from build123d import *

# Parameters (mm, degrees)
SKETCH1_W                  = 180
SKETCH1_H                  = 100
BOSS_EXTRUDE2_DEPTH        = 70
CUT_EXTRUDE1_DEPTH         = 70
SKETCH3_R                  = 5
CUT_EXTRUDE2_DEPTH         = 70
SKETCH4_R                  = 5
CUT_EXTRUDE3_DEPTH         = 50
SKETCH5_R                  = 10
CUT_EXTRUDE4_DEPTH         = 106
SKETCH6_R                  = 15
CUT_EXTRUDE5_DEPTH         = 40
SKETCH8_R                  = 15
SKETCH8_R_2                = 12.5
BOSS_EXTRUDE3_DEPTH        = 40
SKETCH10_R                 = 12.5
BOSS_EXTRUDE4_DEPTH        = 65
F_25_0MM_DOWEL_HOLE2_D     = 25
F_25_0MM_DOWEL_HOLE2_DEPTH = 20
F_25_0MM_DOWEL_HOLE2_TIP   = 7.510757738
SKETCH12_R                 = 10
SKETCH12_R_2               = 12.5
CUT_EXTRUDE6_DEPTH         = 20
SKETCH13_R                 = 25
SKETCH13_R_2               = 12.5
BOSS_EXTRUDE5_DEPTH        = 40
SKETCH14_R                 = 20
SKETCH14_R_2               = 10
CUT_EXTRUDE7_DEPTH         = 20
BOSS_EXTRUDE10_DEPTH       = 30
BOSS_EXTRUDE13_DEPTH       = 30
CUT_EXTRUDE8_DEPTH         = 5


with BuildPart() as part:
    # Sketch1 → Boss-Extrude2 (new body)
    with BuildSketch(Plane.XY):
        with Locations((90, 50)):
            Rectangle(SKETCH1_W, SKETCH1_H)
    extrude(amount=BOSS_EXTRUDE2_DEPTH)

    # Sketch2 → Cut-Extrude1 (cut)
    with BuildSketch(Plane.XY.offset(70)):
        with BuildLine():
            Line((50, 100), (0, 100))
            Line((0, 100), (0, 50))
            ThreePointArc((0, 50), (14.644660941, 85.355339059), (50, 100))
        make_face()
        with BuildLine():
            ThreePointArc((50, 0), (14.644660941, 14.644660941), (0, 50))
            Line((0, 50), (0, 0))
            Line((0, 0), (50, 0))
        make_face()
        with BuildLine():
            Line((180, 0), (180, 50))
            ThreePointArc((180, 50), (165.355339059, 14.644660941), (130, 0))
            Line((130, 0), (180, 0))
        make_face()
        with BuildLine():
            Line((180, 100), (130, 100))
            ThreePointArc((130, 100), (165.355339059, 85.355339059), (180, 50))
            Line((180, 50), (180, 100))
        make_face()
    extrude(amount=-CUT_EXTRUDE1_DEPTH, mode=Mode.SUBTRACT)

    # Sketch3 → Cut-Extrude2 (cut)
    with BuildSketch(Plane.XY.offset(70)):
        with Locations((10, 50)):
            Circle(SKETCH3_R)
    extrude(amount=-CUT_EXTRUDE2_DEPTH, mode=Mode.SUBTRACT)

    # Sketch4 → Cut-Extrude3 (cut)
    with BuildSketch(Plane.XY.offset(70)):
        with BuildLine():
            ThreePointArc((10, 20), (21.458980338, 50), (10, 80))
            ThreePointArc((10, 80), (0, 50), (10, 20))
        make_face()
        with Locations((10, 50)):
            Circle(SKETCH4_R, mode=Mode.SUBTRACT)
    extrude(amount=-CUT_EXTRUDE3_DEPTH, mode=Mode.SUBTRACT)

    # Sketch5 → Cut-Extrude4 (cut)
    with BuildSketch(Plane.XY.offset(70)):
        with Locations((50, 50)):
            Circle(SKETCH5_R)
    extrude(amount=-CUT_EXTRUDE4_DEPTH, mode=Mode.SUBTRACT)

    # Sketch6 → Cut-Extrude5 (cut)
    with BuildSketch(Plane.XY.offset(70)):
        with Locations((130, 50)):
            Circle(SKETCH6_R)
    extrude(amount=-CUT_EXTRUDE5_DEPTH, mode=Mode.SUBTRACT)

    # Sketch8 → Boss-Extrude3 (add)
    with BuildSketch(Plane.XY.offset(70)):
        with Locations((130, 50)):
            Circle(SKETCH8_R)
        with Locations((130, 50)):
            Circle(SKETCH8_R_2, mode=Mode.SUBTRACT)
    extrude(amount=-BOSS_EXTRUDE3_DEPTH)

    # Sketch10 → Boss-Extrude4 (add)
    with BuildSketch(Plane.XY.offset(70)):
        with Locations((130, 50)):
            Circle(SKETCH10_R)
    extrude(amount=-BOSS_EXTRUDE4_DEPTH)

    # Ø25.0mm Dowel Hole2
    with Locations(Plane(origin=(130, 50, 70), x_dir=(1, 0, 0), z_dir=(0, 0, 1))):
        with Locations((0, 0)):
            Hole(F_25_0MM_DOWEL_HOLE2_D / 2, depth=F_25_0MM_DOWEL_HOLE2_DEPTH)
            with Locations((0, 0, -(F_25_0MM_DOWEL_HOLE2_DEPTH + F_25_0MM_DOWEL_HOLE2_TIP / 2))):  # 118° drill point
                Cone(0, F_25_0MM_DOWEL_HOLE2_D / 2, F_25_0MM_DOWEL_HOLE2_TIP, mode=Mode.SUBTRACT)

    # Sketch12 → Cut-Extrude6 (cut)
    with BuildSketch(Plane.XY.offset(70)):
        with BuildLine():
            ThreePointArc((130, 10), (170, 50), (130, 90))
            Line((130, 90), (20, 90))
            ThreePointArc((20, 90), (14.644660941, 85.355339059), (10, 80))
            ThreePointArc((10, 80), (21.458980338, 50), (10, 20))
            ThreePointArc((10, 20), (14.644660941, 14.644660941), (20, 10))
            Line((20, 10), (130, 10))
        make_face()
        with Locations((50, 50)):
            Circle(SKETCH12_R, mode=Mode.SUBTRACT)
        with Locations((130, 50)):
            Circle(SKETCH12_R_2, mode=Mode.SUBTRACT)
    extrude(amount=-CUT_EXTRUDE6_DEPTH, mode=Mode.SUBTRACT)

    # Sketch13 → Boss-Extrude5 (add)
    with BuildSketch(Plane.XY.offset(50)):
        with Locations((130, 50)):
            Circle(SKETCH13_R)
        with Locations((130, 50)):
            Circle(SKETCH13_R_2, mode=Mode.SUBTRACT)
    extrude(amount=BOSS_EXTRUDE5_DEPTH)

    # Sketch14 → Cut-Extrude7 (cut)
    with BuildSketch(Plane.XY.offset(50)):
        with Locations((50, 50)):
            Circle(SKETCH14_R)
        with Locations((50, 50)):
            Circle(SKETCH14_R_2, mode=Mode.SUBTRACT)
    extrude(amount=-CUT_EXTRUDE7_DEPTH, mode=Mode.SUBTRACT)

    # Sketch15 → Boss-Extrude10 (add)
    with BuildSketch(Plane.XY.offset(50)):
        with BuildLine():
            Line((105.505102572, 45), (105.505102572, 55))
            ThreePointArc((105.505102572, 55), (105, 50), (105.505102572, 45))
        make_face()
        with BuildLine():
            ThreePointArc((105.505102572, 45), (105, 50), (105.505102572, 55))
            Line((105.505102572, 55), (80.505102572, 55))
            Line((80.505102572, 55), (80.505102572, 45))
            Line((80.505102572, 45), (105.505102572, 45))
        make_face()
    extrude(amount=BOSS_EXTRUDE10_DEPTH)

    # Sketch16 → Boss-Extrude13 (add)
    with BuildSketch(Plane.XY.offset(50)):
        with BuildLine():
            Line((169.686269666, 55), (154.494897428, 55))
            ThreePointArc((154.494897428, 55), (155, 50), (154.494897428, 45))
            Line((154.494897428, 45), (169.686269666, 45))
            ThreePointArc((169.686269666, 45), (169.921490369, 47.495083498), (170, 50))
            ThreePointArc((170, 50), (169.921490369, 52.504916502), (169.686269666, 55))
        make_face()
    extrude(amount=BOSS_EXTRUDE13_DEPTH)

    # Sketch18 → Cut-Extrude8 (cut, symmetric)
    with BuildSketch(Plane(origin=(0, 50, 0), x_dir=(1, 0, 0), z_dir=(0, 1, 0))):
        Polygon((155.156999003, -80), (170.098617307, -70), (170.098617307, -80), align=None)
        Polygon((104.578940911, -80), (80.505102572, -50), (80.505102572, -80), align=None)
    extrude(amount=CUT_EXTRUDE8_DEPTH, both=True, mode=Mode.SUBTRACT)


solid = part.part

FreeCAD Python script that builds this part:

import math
import FreeCAD as App
import Part
import Sketcher
Q = App.Units.Quantity

doc = App.newDocument("Part")
body = doc.addObject("PartDesign::Body", "Body")

# Sketch on XY plane
sketch1 = body.newObject("Sketcher::SketchObject", "Sketch")
sketch1.AttachmentSupport = (doc.getObject("XY_Plane"), [""])
sketch1.MapMode = "FlatFace"
sketch1.addGeometry(Part.LineSegment(App.Vector(0, 100, 0), App.Vector(0, 0, 0)), False)
sketch1.addGeometry(Part.LineSegment(App.Vector(0, 0, 0), App.Vector(180, 0, 0)), False)
sketch1.addGeometry(Part.LineSegment(App.Vector(180, 0, 0), App.Vector(180, 100, 0)), False)
sketch1.addGeometry(Part.LineSegment(App.Vector(180, 100, 0), App.Vector(0, 100, 0)), False)
sketch1.addConstraint(Sketcher.Constraint("Coincident", 0, 2, 1, 1))
sketch1.addConstraint(Sketcher.Constraint("Coincident", 1, 2, 2, 1))
sketch1.addConstraint(Sketcher.Constraint("Coincident", 2, 2, 3, 1))
sketch1.addConstraint(Sketcher.Constraint("Coincident", 3, 2, 0, 1))
sketch1.addConstraint(Sketcher.Constraint("Vertical", 0))
sketch1.addConstraint(Sketcher.Constraint("Horizontal", 1))
sketch1.addConstraint(Sketcher.Constraint("Vertical", 2))
sketch1.addConstraint(Sketcher.Constraint("Horizontal", 3))
sketch1.addConstraint(Sketcher.Constraint("Coincident", 0, 2, -1, 1))
sketch1.addConstraint(Sketcher.Constraint("DistanceX", 1, 1, 1, 2, Q("180 mm")))
sketch1.addConstraint(Sketcher.Constraint("DistanceY", 0, 2, 0, 1, Q("100 mm")))
pad1 = body.newObject("PartDesign::Pad", "Pad")
pad1.Profile = sketch1
pad1.Length = 70

# Sketch on XY plane
sketch2 = body.newObject("Sketcher::SketchObject", "Sketch001")
sketch2.AttachmentSupport = (doc.getObject("XY_Plane"), [""])
sketch2.MapMode = "FlatFace"
sketch2.AttachmentOffset = App.Placement(App.Vector(0, 0, 70), App.Rotation())
sketch2.addGeometry(Part.LineSegment(App.Vector(50, 100, 0), App.Vector(0, 100, 0)), False)
sketch2.addGeometry(Part.LineSegment(App.Vector(0, 100, 0), App.Vector(0, 50, 0)), False)
sketch2.addGeometry(Part.ArcOfCircle(Part.Circle(App.Vector(50, 50, 0), App.Vector(0, 0, 1), 50), math.radians(90), math.radians(180)), False)
sketch2.addGeometry(Part.ArcOfCircle(Part.Circle(App.Vector(50, 50, 0), App.Vector(0, 0, 1), 50), math.radians(-180), math.radians(-90)), False)
sketch2.addGeometry(Part.LineSegment(App.Vector(0, 50, 0), App.Vector(0, 0, 0)), False)
sketch2.addGeometry(Part.LineSegment(App.Vector(0, 0, 0), App.Vector(50, 0, 0)), False)
sketch2.addGeometry(Part.LineSegment(App.Vector(180, 0, 0), App.Vector(180, 50, 0)), False)
sketch2.addGeometry(Part.ArcOfCircle(Part.Circle(App.Vector(130, 50, 0), App.Vector(0, 0, 1), 50), math.radians(-90), math.radians(0)), False)
sketch2.addGeometry(Part.LineSegment(App.Vector(130, 0, 0), App.Vector(180, 0, 0)), False)
sketch2.addGeometry(Part.LineSegment(App.Vector(180, 100, 0), App.Vector(130, 100, 0)), False)
sketch2.addGeometry(Part.ArcOfCircle(Part.Circle(App.Vector(130, 50, 0), App.Vector(0, 0, 1), 50), math.radians(0), math.radians(90)), False)
sketch2.addGeometry(Part.LineSegment(App.Vector(180, 50, 0), App.Vector(180, 100, 0)), False)
sketch2.addConstraint(Sketcher.Constraint("Coincident", 0, 2, 1, 1))
sketch2.addConstraint(Sketcher.Constraint("Tangent", 1, 2, 2, 2))
sketch2.addConstraint(Sketcher.Constraint("Tangent", 2, 1, 0, 1))
sketch2.addConstraint(Sketcher.Constraint("Tangent", 3, 1, 4, 1))
sketch2.addConstraint(Sketcher.Constraint("Coincident", 4, 2, 5, 1))
sketch2.addConstraint(Sketcher.Constraint("Tangent", 5, 2, 3, 2))
sketch2.addConstraint(Sketcher.Constraint("Tangent", 6, 2, 7, 2))
sketch2.addConstraint(Sketcher.Constraint("Tangent", 7, 1, 8, 1))
sketch2.addConstraint(Sketcher.Constraint("Coincident", 8, 2, 6, 1))
sketch2.addConstraint(Sketcher.Constraint("Tangent", 9, 2, 10, 2))
sketch2.addConstraint(Sketcher.Constraint("Tangent", 10, 1, 11, 1))
sketch2.addConstraint(Sketcher.Constraint("Coincident", 11, 2, 9, 1))
sketch2.addConstraint(Sketcher.Constraint("Horizontal", 0))
sketch2.addConstraint(Sketcher.Constraint("Vertical", 1))
sketch2.addConstraint(Sketcher.Constraint("Vertical", 4))
sketch2.addConstraint(Sketcher.Constraint("Horizontal", 5))
sketch2.addConstraint(Sketcher.Constraint("Vertical", 6))
sketch2.addConstraint(Sketcher.Constraint("Horizontal", 8))
sketch2.addConstraint(Sketcher.Constraint("Horizontal", 9))
sketch2.addConstraint(Sketcher.Constraint("Vertical", 11))
sketch2.addConstraint(Sketcher.Constraint("Coincident", 4, 2, -1, 1))
sketch2.addConstraint(Sketcher.Constraint("Coincident", 3, 3, 2, 3))
sketch2.addConstraint(Sketcher.Constraint("Coincident", 10, 3, 7, 3))
sketch2.addConstraint(Sketcher.Constraint("Equal", 2, 3))
sketch2.addConstraint(Sketcher.Constraint("Equal", 3, 7))
sketch2.addConstraint(Sketcher.Constraint("Equal", 7, 10))
sketch2.addConstraint(Sketcher.Constraint("PointOnObject", 7, 1, -1))
sketch2.addConstraint(Sketcher.Constraint("Radius", 2, Q("50 mm")))
sketch2.addConstraint(Sketcher.Constraint("DistanceX", -1, 1, 7, 3, Q("130 mm")))
pocket1 = body.newObject("PartDesign::Pocket", "Pocket")
pocket1.Profile = sketch2
pocket1.Length = 70

# Sketch on XY plane
sketch3 = body.newObject("Sketcher::SketchObject", "Sketch002")
sketch3.AttachmentSupport = (doc.getObject("XY_Plane"), [""])
sketch3.MapMode = "FlatFace"
sketch3.AttachmentOffset = App.Placement(App.Vector(0, 0, 70), App.Rotation())
sketch3.addGeometry(Part.Circle(App.Vector(10, 50, 0), App.Vector(0, 0, 1), 5), False)
sketch3.addConstraint(Sketcher.Constraint("Diameter", 0, Q("10 mm")))
sketch3.addConstraint(Sketcher.Constraint("DistanceX", -1, 1, 0, 3, Q("10 mm")))
sketch3.addConstraint(Sketcher.Constraint("DistanceY", -1, 1, 0, 3, Q("50 mm")))
pocket2 = body.newObject("PartDesign::Pocket", "Pocket001")
pocket2.Profile = sketch3
pocket2.Length = 70

# Sketch on XY plane
sketch4 = body.newObject("Sketcher::SketchObject", "Sketch003")
sketch4.AttachmentSupport = (doc.getObject("XY_Plane"), [""])
sketch4.MapMode = "FlatFace"
sketch4.AttachmentOffset = App.Placement(App.Vector(0, 0, 70), App.Rotation())
sketch4.addGeometry(Part.ArcOfCircle(Part.Circle(App.Vector(-23.54102, 50, 0), App.Vector(0, 0, 1), 45), math.radians(-41.810315), math.radians(41.810315)), False)
sketch4.addGeometry(Part.ArcOfCircle(Part.Circle(App.Vector(50, 50, 0), App.Vector(0, 0, 1), 50), math.radians(143.130102), math.radians(216.869898)), False)
sketch4.addGeometry(Part.Circle(App.Vector(10, 50, 0), App.Vector(0, 0, 1), 5), False)
sketch4.addConstraint(Sketcher.Constraint("Coincident", 0, 1, 1, 2))
sketch4.addConstraint(Sketcher.Constraint("Coincident", 1, 1, 0, 2))
sketch4.addConstraint(Sketcher.Constraint("Horizontal", 0, 3, 1, 3))
sketch4.addConstraint(Sketcher.Constraint("Horizontal", 1, 3, 2, 3))
sketch4.addConstraint(Sketcher.Constraint("Vertical", 2, 3, 0, 1))
sketch4.addConstraint(Sketcher.Constraint("Diameter", 2, Q("10 mm")))
sketch4.addConstraint(Sketcher.Constraint("Radius", 0, Q("45 mm")))
sketch4.addConstraint(Sketcher.Constraint("Radius", 1, Q("50 mm")))
sketch4.addConstraint(Sketcher.Constraint("DistanceY", -1, 1, 0, 3, Q("50 mm")))
sketch4.addConstraint(Sketcher.Constraint("DistanceX", -1, 1, 1, 3, Q("50 mm")))
sketch4.addConstraint(Sketcher.Constraint("DistanceX", -1, 1, 2, 3, Q("10 mm")))
pocket3 = body.newObject("PartDesign::Pocket", "Pocket002")
pocket3.Profile = sketch4
pocket3.Length = 50

# Sketch on XY plane
sketch5 = body.newObject("Sketcher::SketchObject", "Sketch004")
sketch5.AttachmentSupport = (doc.getObject("XY_Plane"), [""])
sketch5.MapMode = "FlatFace"
sketch5.AttachmentOffset = App.Placement(App.Vector(0, 0, 70), App.Rotation())
sketch5.addGeometry(Part.Circle(App.Vector(50, 50, 0), App.Vector(0, 0, 1), 10), False)
sketch5.addConstraint(Sketcher.Constraint("Diameter", 0, Q("20 mm")))
sketch5.addConstraint(Sketcher.Constraint("DistanceX", -1, 1, 0, 3, Q("50 mm")))
sketch5.addConstraint(Sketcher.Constraint("DistanceY", -1, 1, 0, 3, Q("50 mm")))
pocket4 = body.newObject("PartDesign::Pocket", "Pocket003")
pocket4.Profile = sketch5
pocket4.Length = 106

# Sketch on XY plane
sketch6 = body.newObject("Sketcher::SketchObject", "Sketch005")
sketch6.AttachmentSupport = (doc.getObject("XY_Plane"), [""])
sketch6.MapMode = "FlatFace"
sketch6.AttachmentOffset = App.Placement(App.Vector(0, 0, 70), App.Rotation())
sketch6.addGeometry(Part.Circle(App.Vector(130, 50, 0), App.Vector(0, 0, 1), 15), False)
sketch6.addConstraint(Sketcher.Constraint("Diameter", 0, Q("30 mm")))
sketch6.addConstraint(Sketcher.Constraint("DistanceX", -1, 1, 0, 3, Q("130 mm")))
sketch6.addConstraint(Sketcher.Constraint("DistanceY", -1, 1, 0, 3, Q("50 mm")))
pocket5 = body.newObject("PartDesign::Pocket", "Pocket004")
pocket5.Profile = sketch6
pocket5.Length = 40

# Sketch on XY plane
sketch7 = body.newObject("Sketcher::SketchObject", "Sketch006")
sketch7.AttachmentSupport = (doc.getObject("XY_Plane"), [""])
sketch7.MapMode = "FlatFace"
sketch7.AttachmentOffset = App.Placement(App.Vector(0, 0, 70), App.Rotation())
sketch7.addGeometry(Part.Circle(App.Vector(130, 50, 0), App.Vector(0, 0, 1), 15), False)
sketch7.addGeometry(Part.Circle(App.Vector(130, 50, 0), App.Vector(0, 0, 1), 12.5), False)
sketch7.addConstraint(Sketcher.Constraint("Coincident", 1, 3, 0, 3))
sketch7.addConstraint(Sketcher.Constraint("Diameter", 0, Q("30 mm")))
sketch7.addConstraint(Sketcher.Constraint("Diameter", 1, Q("25 mm")))
sketch7.addConstraint(Sketcher.Constraint("DistanceX", -1, 1, 0, 3, Q("130 mm")))
sketch7.addConstraint(Sketcher.Constraint("DistanceY", -1, 1, 0, 3, Q("50 mm")))
pad2 = body.newObject("PartDesign::Pad", "Pad001")
pad2.Profile = sketch7
pad2.Length = 40
pad2.Reversed = True

# Sketch on XY plane
sketch8 = body.newObject("Sketcher::SketchObject", "Sketch007")
sketch8.AttachmentSupport = (doc.getObject("XY_Plane"), [""])
sketch8.MapMode = "FlatFace"
sketch8.AttachmentOffset = App.Placement(App.Vector(0, 0, 70), App.Rotation())
sketch8.addGeometry(Part.Circle(App.Vector(130, 50, 0), App.Vector(0, 0, 1), 12.5), False)
sketch8.addConstraint(Sketcher.Constraint("Diameter", 0, Q("25 mm")))
sketch8.addConstraint(Sketcher.Constraint("DistanceX", -1, 1, 0, 3, Q("130 mm")))
sketch8.addConstraint(Sketcher.Constraint("DistanceY", -1, 1, 0, 3, Q("50 mm")))
pad3 = body.newObject("PartDesign::Pad", "Pad002")
pad3.Profile = sketch8
pad3.Length = 65
pad3.Reversed = True

# Sketch on XY plane
sketch9 = body.newObject("Sketcher::SketchObject", "Sketch008")
sketch9.AttachmentSupport = (doc.getObject("XY_Plane"), [""])
sketch9.MapMode = "FlatFace"
sketch9.AttachmentOffset = App.Placement(App.Vector(0, 0, 70), App.Rotation())
sketch9.addGeometry(Part.Circle(App.Vector(130, 50, 0), App.Vector(0, 0, 1), 12.5), False)
sketch9.addConstraint(Sketcher.Constraint("Diameter", 0, Q("25 mm")))
sketch9.addConstraint(Sketcher.Constraint("DistanceX", -1, 1, 0, 3, Q("130 mm")))
sketch9.addConstraint(Sketcher.Constraint("DistanceY", -1, 1, 0, 3, Q("50 mm")))
doc.recompute()
hole = body.newObject("PartDesign::Hole", "Hole")
hole.Profile = sketch9
hole.ThreadType = "None"
hole.Diameter = 25
hole.DepthType = "Dimension"
hole.Depth = 20
hole.DrillPoint = "Angled"
hole.DrillPointAngle = 118

# Sketch on XY plane
sketch10 = body.newObject("Sketcher::SketchObject", "Sketch009")
sketch10.AttachmentSupport = (doc.getObject("XY_Plane"), [""])
sketch10.MapMode = "FlatFace"
sketch10.AttachmentOffset = App.Placement(App.Vector(0, 0, 70), App.Rotation())
sketch10.addGeometry(Part.ArcOfCircle(Part.Circle(App.Vector(130, 50, 0), App.Vector(0, 0, 1), 40), math.radians(-90), math.radians(90)), False)
sketch10.addGeometry(Part.LineSegment(App.Vector(130, 90, 0), App.Vector(20, 90, 0)), False)
sketch10.addGeometry(Part.ArcOfCircle(Part.Circle(App.Vector(50, 50, 0), App.Vector(0, 0, 1), 50), math.radians(126.869898), math.radians(143.130102)), False)
sketch10.addGeometry(Part.ArcOfCircle(Part.Circle(App.Vector(-23.54102, 50, 0), App.Vector(0, 0, 1), 45), math.radians(-41.810315), math.radians(41.810315)), False)
sketch10.addGeometry(Part.ArcOfCircle(Part.Circle(App.Vector(50, 50, 0), App.Vector(0, 0, 1), 50), math.radians(-143.130102), math.radians(-126.869898)), False)
sketch10.addGeometry(Part.LineSegment(App.Vector(20, 10, 0), App.Vector(130, 10, 0)), False)
sketch10.addGeometry(Part.Circle(App.Vector(50, 50, 0), App.Vector(0, 0, 1), 10), False)
sketch10.addGeometry(Part.Circle(App.Vector(130, 50, 0), App.Vector(0, 0, 1), 12.5), False)
sketch10.addConstraint(Sketcher.Constraint("Tangent", 0, 2, 1, 1))
sketch10.addConstraint(Sketcher.Constraint("Coincident", 1, 2, 2, 1))
sketch10.addConstraint(Sketcher.Constraint("Coincident", 2, 2, 3, 2))
sketch10.addConstraint(Sketcher.Constraint("Coincident", 3, 1, 4, 1))
sketch10.addConstraint(Sketcher.Constraint("Coincident", 4, 2, 5, 1))
sketch10.addConstraint(Sketcher.Constraint("Tangent", 5, 2, 0, 1))
sketch10.addConstraint(Sketcher.Constraint("Horizontal", 1))
sketch10.addConstraint(Sketcher.Constraint("Horizontal", 5))
sketch10.addConstraint(Sketcher.Constraint("Coincident", 4, 3, 2, 3))
sketch10.addConstraint(Sketcher.Constraint("Coincident", 6, 3, 2, 3))
sketch10.addConstraint(Sketcher.Constraint("Coincident", 7, 3, 0, 3))
sketch10.addConstraint(Sketcher.Constraint("Equal", 2, 4))
sketch10.addConstraint(Sketcher.Constraint("Horizontal", 0, 3, 2, 3))
sketch10.addConstraint(Sketcher.Constraint("Horizontal", 2, 3, 3, 3))
sketch10.addConstraint(Sketcher.Constraint("Diameter", 6, Q("20 mm")))
sketch10.addConstraint(Sketcher.Constraint("Diameter", 7, Q("25 mm")))
sketch10.addConstraint(Sketcher.Constraint("Radius", 0, Q("40 mm")))
sketch10.addConstraint(Sketcher.Constraint("Radius", 2, Q("50 mm")))
sketch10.addConstraint(Sketcher.Constraint("Radius", 3, Q("45 mm")))
sketch10.addConstraint(Sketcher.Constraint("DistanceX", 1, 2, 1, 1, Q("110 mm")))
sketch10.addConstraint(Sketcher.Constraint("DistanceX", -1, 1, 0, 3, Q("130 mm")))
sketch10.addConstraint(Sketcher.Constraint("DistanceY", -1, 1, 0, 3, Q("50 mm")))
sketch10.addConstraint(Sketcher.Constraint("DistanceX", -1, 1, 2, 2, Q("10 mm")))
pocket6 = body.newObject("PartDesign::Pocket", "Pocket005")
pocket6.Profile = sketch10
pocket6.Length = 20

# Sketch on XY plane
sketch11 = body.newObject("Sketcher::SketchObject", "Sketch010")
sketch11.AttachmentSupport = (doc.getObject("XY_Plane"), [""])
sketch11.MapMode = "FlatFace"
sketch11.AttachmentOffset = App.Placement(App.Vector(0, 0, 50), App.Rotation())
sketch11.addGeometry(Part.Circle(App.Vector(130, 50, 0), App.Vector(0, 0, 1), 25), False)
sketch11.addGeometry(Part.Circle(App.Vector(130, 50, 0), App.Vector(0, 0, 1), 12.5), False)
sketch11.addConstraint(Sketcher.Constraint("Coincident", 1, 3, 0, 3))
sketch11.addConstraint(Sketcher.Constraint("Diameter", 0, Q("50 mm")))
sketch11.addConstraint(Sketcher.Constraint("Diameter", 1, Q("25 mm")))
sketch11.addConstraint(Sketcher.Constraint("DistanceX", -1, 1, 0, 3, Q("130 mm")))
sketch11.addConstraint(Sketcher.Constraint("DistanceY", -1, 1, 0, 3, Q("50 mm")))
pad4 = body.newObject("PartDesign::Pad", "Pad003")
pad4.Profile = sketch11
pad4.Length = 40

# Sketch on XY plane
sketch12 = body.newObject("Sketcher::SketchObject", "Sketch011")
sketch12.AttachmentSupport = (doc.getObject("XY_Plane"), [""])
sketch12.MapMode = "FlatFace"
sketch12.AttachmentOffset = App.Placement(App.Vector(0, 0, 50), App.Rotation())
sketch12.addGeometry(Part.Circle(App.Vector(50, 50, 0), App.Vector(0, 0, 1), 20), False)
sketch12.addGeometry(Part.Circle(App.Vector(50, 50, 0), App.Vector(0, 0, 1), 10), False)
sketch12.addConstraint(Sketcher.Constraint("Coincident", 1, 3, 0, 3))
sketch12.addConstraint(Sketcher.Constraint("Diameter", 0, Q("40 mm")))
sketch12.addConstraint(Sketcher.Constraint("Diameter", 1, Q("20 mm")))
sketch12.addConstraint(Sketcher.Constraint("DistanceX", -1, 1, 0, 3, Q("50 mm")))
sketch12.addConstraint(Sketcher.Constraint("DistanceY", -1, 1, 0, 3, Q("50 mm")))
pocket7 = body.newObject("PartDesign::Pocket", "Pocket006")
pocket7.Profile = sketch12
pocket7.Length = 20

# Sketch on XY plane
sketch13 = body.newObject("Sketcher::SketchObject", "Sketch012")
sketch13.AttachmentSupport = (doc.getObject("XY_Plane"), [""])
sketch13.MapMode = "FlatFace"
sketch13.AttachmentOffset = App.Placement(App.Vector(0, 0, 50), App.Rotation())
sketch13.addGeometry(Part.LineSegment(App.Vector(105.505103, 45, 0), App.Vector(105.505103, 55, 0)), False)
sketch13.addGeometry(Part.LineSegment(App.Vector(105.505103, 55, 0), App.Vector(80.505103, 55, 0)), False)
sketch13.addGeometry(Part.LineSegment(App.Vector(80.505103, 55, 0), App.Vector(80.505103, 45, 0)), False)
sketch13.addGeometry(Part.LineSegment(App.Vector(80.505103, 45, 0), App.Vector(105.505103, 45, 0)), False)
sketch13.addConstraint(Sketcher.Constraint("Coincident", 0, 2, 1, 1))
sketch13.addConstraint(Sketcher.Constraint("Coincident", 1, 2, 2, 1))
sketch13.addConstraint(Sketcher.Constraint("Coincident", 2, 2, 3, 1))
sketch13.addConstraint(Sketcher.Constraint("Coincident", 3, 2, 0, 1))
sketch13.addConstraint(Sketcher.Constraint("Vertical", 0))
sketch13.addConstraint(Sketcher.Constraint("Horizontal", 1))
sketch13.addConstraint(Sketcher.Constraint("Vertical", 2))
sketch13.addConstraint(Sketcher.Constraint("Horizontal", 3))
sketch13.addConstraint(Sketcher.Constraint("DistanceX", 1, 2, 1, 1, Q("25 mm")))
sketch13.addConstraint(Sketcher.Constraint("DistanceY", 0, 1, 0, 2, Q("10 mm")))
sketch13.addConstraint(Sketcher.Constraint("DistanceY", -1, 1, 0, 2, Q("55 mm")))
sketch13.addConstraint(Sketcher.Constraint("DistanceX", -1, 1, 0, 2, Q("105.505103 mm")))
pad5 = body.newObject("PartDesign::Pad", "Pad004")
pad5.Profile = sketch13
pad5.Length = 30

# Sketch on XY plane
sketch14 = body.newObject("Sketcher::SketchObject", "Sketch013")
sketch14.AttachmentSupport = (doc.getObject("XY_Plane"), [""])
sketch14.MapMode = "FlatFace"
sketch14.AttachmentOffset = App.Placement(App.Vector(0, 0, 50), App.Rotation())
sketch14.addGeometry(Part.LineSegment(App.Vector(169.68627, 55, 0), App.Vector(154.494897, 55, 0)), False)
sketch14.addGeometry(Part.ArcOfCircle(Part.Circle(App.Vector(130, 50, 0), App.Vector(0, 0, 1), 25), math.radians(-11.536959), math.radians(11.536959)), False)
sketch14.addGeometry(Part.LineSegment(App.Vector(154.494897, 45, 0), App.Vector(169.68627, 45, 0)), False)
sketch14.addGeometry(Part.ArcOfCircle(Part.Circle(App.Vector(130, 50, 0), App.Vector(0, 0, 1), 40), math.radians(-7.180756), math.radians(0)), False)
sketch14.addGeometry(Part.ArcOfCircle(Part.Circle(App.Vector(130, 50, 0), App.Vector(0, 0, 1), 40), math.radians(0), math.radians(7.180756)), False)
sketch14.addConstraint(Sketcher.Constraint("Coincident", 0, 2, 1, 2))
sketch14.addConstraint(Sketcher.Constraint("Coincident", 1, 1, 2, 1))
sketch14.addConstraint(Sketcher.Constraint("Coincident", 2, 2, 3, 1))
sketch14.addConstraint(Sketcher.Constraint("Tangent", 3, 2, 4, 1))
sketch14.addConstraint(Sketcher.Constraint("Coincident", 4, 2, 0, 1))
sketch14.addConstraint(Sketcher.Constraint("Horizontal", 0))
sketch14.addConstraint(Sketcher.Constraint("Horizontal", 2))
sketch14.addConstraint(Sketcher.Constraint("Coincident", 3, 3, 1, 3))
sketch14.addConstraint(Sketcher.Constraint("Equal", 3, 4))
sketch14.addConstraint(Sketcher.Constraint("Horizontal", 4, 3, 3, 2))
sketch14.addConstraint(Sketcher.Constraint("Vertical", 0, 2, 1, 1))
sketch14.addConstraint(Sketcher.Constraint("Radius", 1, Q("25 mm")))
sketch14.addConstraint(Sketcher.Constraint("Radius", 3, Q("40 mm")))
sketch14.addConstraint(Sketcher.Constraint("DistanceX", -1, 1, 1, 3, Q("130 mm")))
sketch14.addConstraint(Sketcher.Constraint("DistanceY", -1, 1, 1, 3, Q("50 mm")))
sketch14.addConstraint(Sketcher.Constraint("DistanceY", -1, 1, 0, 2, Q("55 mm")))
pad6 = body.newObject("PartDesign::Pad", "Pad005")
pad6.Profile = sketch14
pad6.Length = 30

# Sketch on XZ plane
sketch15 = body.newObject("Sketcher::SketchObject", "Sketch014")
sketch15.AttachmentSupport = (doc.getObject("XZ_Plane"), [""])
sketch15.MapMode = "FlatFace"
sketch15.AttachmentOffset = App.Placement(App.Vector(0, 0, -50), App.Rotation())
sketch15.addGeometry(Part.LineSegment(App.Vector(170.098617, 70, 0), App.Vector(155.156999, 80, 0)), False)
sketch15.addGeometry(Part.LineSegment(App.Vector(155.156999, 80, 0), App.Vector(170.098617, 80, 0)), False)
sketch15.addGeometry(Part.LineSegment(App.Vector(170.098617, 80, 0), App.Vector(170.098617, 70, 0)), False)
sketch15.addGeometry(Part.LineSegment(App.Vector(104.578941, 80, 0), App.Vector(80.505103, 50, 0)), False)
sketch15.addGeometry(Part.LineSegment(App.Vector(80.505103, 50, 0), App.Vector(80.505103, 80, 0)), False)
sketch15.addGeometry(Part.LineSegment(App.Vector(80.505103, 80, 0), App.Vector(104.578941, 80, 0)), False)
sketch15.addConstraint(Sketcher.Constraint("Coincident", 0, 2, 1, 1))
sketch15.addConstraint(Sketcher.Constraint("Coincident", 1, 2, 2, 1))
sketch15.addConstraint(Sketcher.Constraint("Coincident", 2, 2, 0, 1))
sketch15.addConstraint(Sketcher.Constraint("Coincident", 3, 2, 4, 1))
sketch15.addConstraint(Sketcher.Constraint("Coincident", 4, 2, 5, 1))
sketch15.addConstraint(Sketcher.Constraint("Coincident", 5, 2, 3, 1))
sketch15.addConstraint(Sketcher.Constraint("Horizontal", 1))
sketch15.addConstraint(Sketcher.Constraint("Vertical", 2))
sketch15.addConstraint(Sketcher.Constraint("Vertical", 4))
sketch15.addConstraint(Sketcher.Constraint("Horizontal", 5))
sketch15.addConstraint(Sketcher.Constraint("Horizontal", 1, 2, 4, 2))
sketch15.addConstraint(Sketcher.Constraint("DistanceY", 2, 2, 2, 1, Q("10 mm")))
sketch15.addConstraint(Sketcher.Constraint("DistanceY", 4, 1, 4, 2, Q("30 mm")))
sketch15.addConstraint(Sketcher.Constraint("DistanceY", -1, 1, 0, 2, Q("80 mm")))
sketch15.addConstraint(Sketcher.Constraint("DistanceX", -1, 1, 0, 2, Q("155.156999 mm")))
sketch15.addConstraint(Sketcher.Constraint("DistanceX", 1, 1, 1, 2, Q("14.941618 mm")))
sketch15.addConstraint(Sketcher.Constraint("DistanceX", 5, 1, 5, 2, Q("24.073838 mm")))
sketch15.addConstraint(Sketcher.Constraint("DistanceX", -1, 1, 5, 2, Q("104.578941 mm")))
pocket8 = body.newObject("PartDesign::Pocket", "Pocket007")
pocket8.Profile = sketch15
pocket8.Length = 10
pocket8.Midplane = True

doc.recompute()
